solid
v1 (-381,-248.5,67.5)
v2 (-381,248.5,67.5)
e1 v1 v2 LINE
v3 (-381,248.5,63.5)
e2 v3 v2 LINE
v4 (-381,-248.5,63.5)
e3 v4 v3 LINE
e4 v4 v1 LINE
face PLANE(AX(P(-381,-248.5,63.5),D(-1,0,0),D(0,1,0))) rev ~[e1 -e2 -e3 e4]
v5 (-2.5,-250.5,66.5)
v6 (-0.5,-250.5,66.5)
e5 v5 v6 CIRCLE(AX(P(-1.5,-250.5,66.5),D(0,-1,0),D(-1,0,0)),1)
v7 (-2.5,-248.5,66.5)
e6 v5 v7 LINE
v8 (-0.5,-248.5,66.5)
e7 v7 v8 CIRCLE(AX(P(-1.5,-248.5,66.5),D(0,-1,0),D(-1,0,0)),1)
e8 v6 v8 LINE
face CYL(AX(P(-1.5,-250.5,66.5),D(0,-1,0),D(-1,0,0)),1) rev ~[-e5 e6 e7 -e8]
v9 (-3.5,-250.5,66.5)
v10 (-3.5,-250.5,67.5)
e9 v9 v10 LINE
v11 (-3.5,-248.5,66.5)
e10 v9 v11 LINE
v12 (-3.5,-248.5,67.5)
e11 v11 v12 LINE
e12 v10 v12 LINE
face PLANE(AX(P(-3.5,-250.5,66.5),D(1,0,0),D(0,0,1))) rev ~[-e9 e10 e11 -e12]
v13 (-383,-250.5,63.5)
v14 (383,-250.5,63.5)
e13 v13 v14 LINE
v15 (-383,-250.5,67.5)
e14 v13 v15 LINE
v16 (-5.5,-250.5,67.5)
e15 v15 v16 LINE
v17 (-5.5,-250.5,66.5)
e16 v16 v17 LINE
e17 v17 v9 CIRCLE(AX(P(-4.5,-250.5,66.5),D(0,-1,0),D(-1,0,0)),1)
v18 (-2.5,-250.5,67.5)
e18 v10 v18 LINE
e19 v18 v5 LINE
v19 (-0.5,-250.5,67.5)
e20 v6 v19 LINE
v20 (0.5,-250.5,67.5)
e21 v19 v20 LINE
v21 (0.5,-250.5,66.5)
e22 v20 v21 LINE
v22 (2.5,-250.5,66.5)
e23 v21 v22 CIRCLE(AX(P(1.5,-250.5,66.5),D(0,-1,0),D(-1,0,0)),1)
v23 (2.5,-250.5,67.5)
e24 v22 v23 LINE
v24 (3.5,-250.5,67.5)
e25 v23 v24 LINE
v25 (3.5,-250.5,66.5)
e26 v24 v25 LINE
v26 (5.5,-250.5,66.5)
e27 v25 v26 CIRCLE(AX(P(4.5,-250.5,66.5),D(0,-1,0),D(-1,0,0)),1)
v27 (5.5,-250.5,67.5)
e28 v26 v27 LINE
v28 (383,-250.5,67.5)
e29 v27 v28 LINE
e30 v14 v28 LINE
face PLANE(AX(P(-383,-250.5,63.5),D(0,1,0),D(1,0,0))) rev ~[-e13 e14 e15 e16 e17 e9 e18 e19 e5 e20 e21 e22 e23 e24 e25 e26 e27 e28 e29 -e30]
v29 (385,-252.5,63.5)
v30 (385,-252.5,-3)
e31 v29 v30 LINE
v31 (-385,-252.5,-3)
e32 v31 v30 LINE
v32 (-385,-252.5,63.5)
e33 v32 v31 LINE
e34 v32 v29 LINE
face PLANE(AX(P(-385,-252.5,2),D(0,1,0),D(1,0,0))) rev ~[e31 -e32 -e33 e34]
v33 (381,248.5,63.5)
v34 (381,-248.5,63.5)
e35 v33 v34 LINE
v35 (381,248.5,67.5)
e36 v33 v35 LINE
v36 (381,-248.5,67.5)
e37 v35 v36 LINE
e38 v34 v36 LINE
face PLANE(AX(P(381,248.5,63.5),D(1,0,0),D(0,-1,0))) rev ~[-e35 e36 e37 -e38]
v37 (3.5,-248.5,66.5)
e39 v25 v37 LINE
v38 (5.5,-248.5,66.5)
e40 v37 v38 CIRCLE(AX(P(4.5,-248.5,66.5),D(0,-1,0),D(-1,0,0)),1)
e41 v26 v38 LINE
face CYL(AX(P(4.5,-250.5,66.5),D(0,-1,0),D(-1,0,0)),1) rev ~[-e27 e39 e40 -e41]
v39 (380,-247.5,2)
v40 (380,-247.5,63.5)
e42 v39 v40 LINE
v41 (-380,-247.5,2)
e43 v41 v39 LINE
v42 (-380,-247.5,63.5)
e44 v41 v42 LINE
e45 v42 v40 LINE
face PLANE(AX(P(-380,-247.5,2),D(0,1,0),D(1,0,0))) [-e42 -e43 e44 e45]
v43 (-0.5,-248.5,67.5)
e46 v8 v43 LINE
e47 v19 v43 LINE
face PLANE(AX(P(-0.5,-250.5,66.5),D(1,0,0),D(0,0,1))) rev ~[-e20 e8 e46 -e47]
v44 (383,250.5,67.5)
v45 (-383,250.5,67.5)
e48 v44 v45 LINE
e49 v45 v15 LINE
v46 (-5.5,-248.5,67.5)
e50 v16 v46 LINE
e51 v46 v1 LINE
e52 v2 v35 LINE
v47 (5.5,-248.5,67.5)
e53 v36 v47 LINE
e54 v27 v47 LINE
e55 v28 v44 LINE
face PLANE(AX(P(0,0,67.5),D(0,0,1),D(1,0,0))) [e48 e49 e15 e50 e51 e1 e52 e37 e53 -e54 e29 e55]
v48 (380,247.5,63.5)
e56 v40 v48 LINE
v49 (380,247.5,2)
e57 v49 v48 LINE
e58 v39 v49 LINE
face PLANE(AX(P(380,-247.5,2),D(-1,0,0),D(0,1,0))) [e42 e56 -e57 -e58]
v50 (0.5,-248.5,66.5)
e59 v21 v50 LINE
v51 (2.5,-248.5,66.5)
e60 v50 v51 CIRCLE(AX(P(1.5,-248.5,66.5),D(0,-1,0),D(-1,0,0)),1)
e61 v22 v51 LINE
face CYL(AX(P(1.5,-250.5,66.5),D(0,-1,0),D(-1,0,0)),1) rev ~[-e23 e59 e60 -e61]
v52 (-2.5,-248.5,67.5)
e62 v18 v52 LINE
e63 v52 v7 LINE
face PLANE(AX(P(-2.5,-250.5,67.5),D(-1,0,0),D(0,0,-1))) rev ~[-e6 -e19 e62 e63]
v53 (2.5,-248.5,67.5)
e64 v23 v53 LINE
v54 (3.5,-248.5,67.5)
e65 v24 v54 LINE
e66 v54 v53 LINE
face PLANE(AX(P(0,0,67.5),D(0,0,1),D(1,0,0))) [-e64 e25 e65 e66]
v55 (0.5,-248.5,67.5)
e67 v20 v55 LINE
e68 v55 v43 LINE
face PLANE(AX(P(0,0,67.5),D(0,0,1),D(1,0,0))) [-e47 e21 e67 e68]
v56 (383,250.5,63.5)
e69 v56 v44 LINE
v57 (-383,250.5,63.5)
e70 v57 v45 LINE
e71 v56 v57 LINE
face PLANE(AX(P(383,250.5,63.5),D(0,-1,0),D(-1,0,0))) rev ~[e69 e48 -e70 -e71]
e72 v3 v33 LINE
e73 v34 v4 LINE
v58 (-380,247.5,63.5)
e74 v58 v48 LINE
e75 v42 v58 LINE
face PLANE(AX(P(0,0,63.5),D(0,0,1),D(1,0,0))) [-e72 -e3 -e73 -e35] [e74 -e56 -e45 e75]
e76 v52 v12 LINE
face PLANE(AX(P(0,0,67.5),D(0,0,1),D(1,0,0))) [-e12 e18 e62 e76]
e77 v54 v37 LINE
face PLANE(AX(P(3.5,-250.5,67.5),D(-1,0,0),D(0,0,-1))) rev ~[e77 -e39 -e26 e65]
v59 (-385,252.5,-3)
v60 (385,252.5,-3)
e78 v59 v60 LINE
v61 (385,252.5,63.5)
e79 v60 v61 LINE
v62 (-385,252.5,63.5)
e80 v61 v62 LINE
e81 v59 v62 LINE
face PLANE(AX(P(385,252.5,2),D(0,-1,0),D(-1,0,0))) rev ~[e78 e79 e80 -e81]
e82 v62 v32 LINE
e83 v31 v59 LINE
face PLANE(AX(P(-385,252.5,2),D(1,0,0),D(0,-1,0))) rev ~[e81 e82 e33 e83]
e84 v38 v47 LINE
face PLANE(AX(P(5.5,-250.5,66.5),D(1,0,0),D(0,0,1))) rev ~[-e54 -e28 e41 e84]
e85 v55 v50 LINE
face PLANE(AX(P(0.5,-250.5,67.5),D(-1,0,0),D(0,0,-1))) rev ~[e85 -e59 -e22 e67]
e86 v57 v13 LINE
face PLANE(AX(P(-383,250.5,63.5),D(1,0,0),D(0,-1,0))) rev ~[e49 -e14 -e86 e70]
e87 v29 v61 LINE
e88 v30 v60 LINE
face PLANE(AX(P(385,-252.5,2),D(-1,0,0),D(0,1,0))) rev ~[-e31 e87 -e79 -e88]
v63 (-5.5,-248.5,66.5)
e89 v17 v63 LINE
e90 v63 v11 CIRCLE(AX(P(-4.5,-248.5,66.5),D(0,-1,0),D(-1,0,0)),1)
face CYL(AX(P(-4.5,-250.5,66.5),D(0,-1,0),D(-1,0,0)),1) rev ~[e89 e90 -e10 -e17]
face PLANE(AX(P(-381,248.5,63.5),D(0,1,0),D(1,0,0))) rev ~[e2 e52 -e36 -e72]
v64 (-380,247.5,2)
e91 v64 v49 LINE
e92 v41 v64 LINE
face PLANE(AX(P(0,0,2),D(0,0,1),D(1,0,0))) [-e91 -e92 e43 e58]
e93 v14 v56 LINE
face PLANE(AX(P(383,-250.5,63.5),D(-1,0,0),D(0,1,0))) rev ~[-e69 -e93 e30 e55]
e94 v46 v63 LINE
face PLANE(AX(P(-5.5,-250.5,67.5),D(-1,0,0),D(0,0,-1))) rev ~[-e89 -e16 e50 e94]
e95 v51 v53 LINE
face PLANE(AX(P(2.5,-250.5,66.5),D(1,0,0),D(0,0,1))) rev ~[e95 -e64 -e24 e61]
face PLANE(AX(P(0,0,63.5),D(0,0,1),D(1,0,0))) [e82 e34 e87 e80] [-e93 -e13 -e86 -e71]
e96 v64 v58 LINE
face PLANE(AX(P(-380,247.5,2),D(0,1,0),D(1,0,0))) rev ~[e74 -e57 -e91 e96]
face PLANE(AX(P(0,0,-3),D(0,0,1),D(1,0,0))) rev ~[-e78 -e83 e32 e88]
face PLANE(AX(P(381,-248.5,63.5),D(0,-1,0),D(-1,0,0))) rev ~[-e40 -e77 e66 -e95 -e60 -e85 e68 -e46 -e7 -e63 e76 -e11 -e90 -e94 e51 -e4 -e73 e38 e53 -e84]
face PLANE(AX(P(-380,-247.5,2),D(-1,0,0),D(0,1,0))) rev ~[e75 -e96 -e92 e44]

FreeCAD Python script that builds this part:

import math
import FreeCAD as App
import Part
import Sketcher
from FreeCAD import Vector


def add_polygon(sketch, points):
    """Adds a closed chain of lines whose ends are joined by coincident constraints."""
    first, n = sketch.GeometryCount, len(points)
    for a, b in zip(points, points[1:] + points[:1]):
        sketch.addGeometry(Part.LineSegment(App.Vector(*a, 0), App.Vector(*b, 0)), False)
    for i in range(n):
        sketch.addConstraint(Sketcher.Constraint("Coincident", first + i, 2, first + (i + 1) % n, 1))

doc = App.newDocument("Part")
body = doc.addObject("PartDesign::Body", "Body")

# Sketch on XY plane
sketch1 = body.newObject("Sketcher::SketchObject", "Sketch")
sketch1.AttachmentSupport = (doc.getObject("XY_Plane"), [""])
sketch1.MapMode = "FlatFace"
add_polygon(sketch1, [(-385, 252), (-385, -252), (385, -252), (385, 252)])  # lines 0-3
sketch1.addConstraint(Sketcher.Constraint("Vertical", 0))
sketch1.addConstraint(Sketcher.Constraint("Horizontal", 1))
sketch1.addConstraint(Sketcher.Constraint("Vertical", 2))
sketch1.addConstraint(Sketcher.Constraint("Horizontal", 3))
sketch1.addConstraint(Sketcher.Constraint("Symmetric", 0, 2, 2, 2, -1, 1))
sketch1.addConstraint(Sketcher.Constraint("DistanceX", 1, 1, 1, 2, 770.0))
sketch1.addConstraint(Sketcher.Constraint("DistanceY", 0, 2, 0, 1, 505.0))
pad1 = body.newObject("PartDesign::Pad", "Pad")
pad1.Profile = sketch1
pad1.Type = "TwoLengths"
pad1.Length = 2
pad1.Length2 = 3

# Sketch on XY plane
sketch2 = body.newObject("Sketcher::SketchObject", "Sketch001")
sketch2.AttachmentSupport = (doc.getObject("XY_Plane"), [""])
sketch2.MapMode = "FlatFace"
sketch2.AttachmentOffset = App.Placement(Vector(0, 0, 2), App.Rotation())
add_polygon(sketch2, [(385, -252), (385, 252), (-385, 252), (-385, -252)])  # lines 0-3
add_polygon(sketch2, [(380, -248), (-380, -248), (-380, 248), (380, 248)])  # lines 4-7
sketch2.addConstraint(Sketcher.Constraint("Vertical", 0))
sketch2.addConstraint(Sketcher.Constraint("Horizontal", 1))
sketch2.addConstraint(Sketcher.Constraint("Vertical", 2))
sketch2.addConstraint(Sketcher.Constraint("Horizontal", 3))
sketch2.addConstraint(Sketcher.Constraint("Horizontal", 4))
sketch2.addConstraint(Sketcher.Constraint("Vertical", 5))
sketch2.addConstraint(Sketcher.Constraint("Horizontal", 6))
sketch2.addConstraint(Sketcher.Constraint("Vertical", 7))
sketch2.addConstraint(Sketcher.Constraint("Symmetric", 0, 2, 2, 2, -1, 1))
sketch2.addConstraint(Sketcher.Constraint("Symmetric", 4, 2, 6, 2, -1, 1))
sketch2.addConstraint(Sketcher.Constraint("DistanceX", 1, 2, 1, 1, 770.0))
sketch2.addConstraint(Sketcher.Constraint("DistanceX", 4, 2, 4, 1, 760.0))
sketch2.addConstraint(Sketcher.Constraint("DistanceY", 0, 1, 0, 2, 505.0))
sketch2.addConstraint(Sketcher.Constraint("DistanceY", 5, 1, 5, 2, 495.0))
pad2 = body.newObject("PartDesign::Pad", "Pad001")
pad2.Profile = sketch2
pad2.Length = 61.5

# Sketch on XY plane
sketch3 = body.newObject("Sketcher::SketchObject", "Sketch002")
sketch3.AttachmentSupport = (doc.getObject("XY_Plane"), [""])
sketch3.MapMode = "FlatFace"
sketch3.AttachmentOffset = App.Placement(Vector(0, 0, 63.5), App.Rotation())
add_polygon(sketch3, [(383, 250), (-383, 250), (-383, -250), (383, -250)])  # lines 0-3
add_polygon(sketch3, [(381, -248), (-381, -248), (-381, 248), (381, 248)])  # lines 4-7
sketch3.addConstraint(Sketcher.Constraint("Horizontal", 0))
sketch3.addConstraint(Sketcher.Constraint("Vertical", 1))
sketch3.addConstraint(Sketcher.Constraint("Horizontal", 2))
sketch3.addConstraint(Sketcher.Constraint("Vertical", 3))
sketch3.addConstraint(Sketcher.Constraint("Horizontal", 4))
sketch3.addConstraint(Sketcher.Constraint("Vertical", 5))
sketch3.addConstraint(Sketcher.Constraint("Horizontal", 6))
sketch3.addConstraint(Sketcher.Constraint("Vertical", 7))
sketch3.addConstraint(Sketcher.Constraint("Symmetric", 0, 2, 2, 2, -1, 1))
sketch3.addConstraint(Sketcher.Constraint("Symmetric", 4, 2, 6, 2, -1, 1))
sketch3.addConstraint(Sketcher.Constraint("DistanceX", 0, 2, 0, 1, 766.0))
sketch3.addConstraint(Sketcher.Constraint("DistanceX", 4, 2, 4, 1, 762.0))
sketch3.addConstraint(Sketcher.Constraint("DistanceY", 1, 2, 1, 1, 501.0))
sketch3.addConstraint(Sketcher.Constraint("DistanceY", 5, 1, 5, 2, 497.0))
pad3 = body.newObject("PartDesign::Pad", "Pad002")
pad3.Profile = sketch3
pad3.Length = 4

# Sketch on XZ plane
sketch4 = body.newObject("Sketcher::SketchObject", "Sketch003")
sketch4.AttachmentSupport = (doc.getObject("XZ_Plane"), [""])
sketch4.MapMode = "FlatFace"
sketch4.AttachmentOffset = App.Placement(Vector(0, 0, 250.5), App.Rotation())
sketch4.addGeometry(Part.LineSegment(Vector(3.5, 67.5, 0), Vector(3.5, 66.5, 0)), False)
sketch4.addGeometry(Part.ArcOfCircle(Part.Circle(Vector(4.5, 66.5, 0), Vector(0, 0, 1), 1), math.radians(180), math.radians(360)), False)
sketch4.addGeometry(Part.LineSegment(Vector(5.5, 66.5, 0), Vector(5.5, 67.5, 0)), False)
sketch4.addGeometry(Part.LineSegment(Vector(5.5, 67.5, 0), Vector(3.5, 67.5, 0)), False)
sketch4.addGeometry(Part.LineSegment(Vector(0.5, 67.5, 0), Vector(0.5, 66.5, 0)), False)
sketch4.addGeometry(Part.ArcOfCircle(Part.Circle(Vector(1.5, 66.5, 0), Vector(0, 0, 1), 1), math.radians(180), math.radians(360)), False)
sketch4.addGeometry(Part.LineSegment(Vector(2.5, 66.5, 0), Vector(2.5, 67.5, 0)), False)
sketch4.addGeometry(Part.LineSegment(Vector(2.5, 67.5, 0), Vector(0.5, 67.5, 0)), False)
sketch4.addGeometry(Part.LineSegment(Vector(-3.5, 66.5, 0), Vector(-3.5, 67.5, 0)), False)
sketch4.addGeometry(Part.LineSegment(Vector(-3.5, 67.5, 0), Vector(-5.5, 67.5, 0)), False)
sketch4.addGeometry(Part.LineSegment(Vector(-5.5, 67.5, 0), Vector(-5.5, 66.5, 0)), False)
sketch4.addGeometry(Part.ArcOfCircle(Part.Circle(Vector(-4.5, 66.5, 0), Vector(0, 0, 1), 1), math.radians(180), math.radians(360)), False)
sketch4.addGeometry(Part.LineSegment(Vector(-0.5, 66.5, 0), Vector(-0.5, 67.5, 0)), False)
sketch4.addGeometry(Part.LineSegment(Vector(-0.5, 67.5, 0), Vector(-2.5, 67.5, 0)), False)
sketch4.addGeometry(Part.LineSegment(Vector(-2.5, 67.5, 0), Vector(-2.5, 66.5, 0)), False)
sketch4.addGeometry(Part.ArcOfCircle(Part.Circle(Vector(-1.5, 66.5, 0), Vector(0, 0, 1), 1), math.radians(180), math.radians(360)), False)
sketch4.addConstraint(Sketcher.Constraint("Tangent", 0, 2, 1, 1))
sketch4.addConstraint(Sketcher.Constraint("Tangent", 1, 2, 2, 1))
sketch4.addConstraint(Sketcher.Constraint("Coincident", 2, 2, 3, 1))
sketch4.addConstraint(Sketcher.Constraint("Coincident", 3, 2, 0, 1))
sketch4.addConstraint(Sketcher.Constraint("Tangent", 4, 2, 5, 1))
sketch4.addConstraint(Sketcher.Constraint("Tangent", 5, 2, 6, 1))
sketch4.addConstraint(Sketcher.Constraint("Coincident", 6, 2, 7, 1))
sketch4.addConstraint(Sketcher.Constraint("Coincident", 7, 2, 4, 1))
sketch4.addConstraint(Sketcher.Constraint("Coincident", 8, 2, 9, 1))
sketch4.addConstraint(Sketcher.Constraint("Coincident", 9, 2, 10, 1))
sketch4.addConstraint(Sketcher.Constraint("Tangent", 10, 2, 11, 1))
sketch4.addConstraint(Sketcher.Constraint("Tangent", 11, 2, 8, 1))
sketch4.addConstraint(Sketcher.Constraint("Coincident", 12, 2, 13, 1))
sketch4.addConstraint(Sketcher.Constraint("Coincident", 13, 2, 14, 1))
sketch4.addConstraint(Sketcher.Constraint("Tangent", 14, 2, 15, 1))
sketch4.addConstraint(Sketcher.Constraint("Tangent", 15, 2, 12, 1))
sketch4.addConstraint(Sketcher.Constraint("Vertical", 0))
sketch4.addConstraint(Sketcher.Constraint("Vertical", 2))
sketch4.addConstraint(Sketcher.Constraint("Horizontal", 3))
sketch4.addConstraint(Sketcher.Constraint("Vertical", 4))
sketch4.addConstraint(Sketcher.Constraint("Vertical", 6))
sketch4.addConstraint(Sketcher.Constraint("Horizontal", 7))
sketch4.addConstraint(Sketcher.Constraint("Vertical", 8))
sketch4.addConstraint(Sketcher.Constraint("Horizontal", 9))
sketch4.addConstraint(Sketcher.Constraint("Vertical", 10))
sketch4.addConstraint(Sketcher.Constraint("Vertical", 12))
sketch4.addConstraint(Sketcher.Constraint("Horizontal", 13))
sketch4.addConstraint(Sketcher.Constraint("Vertical", 14))
sketch4.addConstraint(Sketcher.Constraint("Equal", 1, 5))
sketch4.addConstraint(Sketcher.Constraint("Equal", 5, 11))
sketch4.addConstraint(Sketcher.Constraint("Equal", 11, 15))
sketch4.addConstraint(Sketcher.Constraint("Symmetric", 1, 3, 11, 3, -2))
sketch4.addConstraint(Sketcher.Constraint("Symmetric", 5, 3, 15, 3, -2))
sketch4.addConstraint(Sketcher.Constraint("Horizontal", 1, 3, 5, 3))
sketch4.addConstraint(Sketcher.Constraint("Horizontal", 3, 2, 6, 2))
sketch4.addConstraint(Sketcher.Constraint("Horizontal", 7, 2, 8, 2))
sketch4.addConstraint(Sketcher.Constraint("Horizontal", 9, 2, 12, 2))
sketch4.addConstraint(Sketcher.Constraint("Radius", 1, 1.0))
sketch4.addConstraint(Sketcher.Constraint("DistanceY", 0, 2, 0, 1, 1.0))
sketch4.addConstraint(Sketcher.Constraint("DistanceX", 5, 3, 1, 3, 3.0))
sketch4.addConstraint(Sketcher.Constraint("DistanceX", 11, 3, 5, 3, 6.0))
sketch4.addConstraint(Sketcher.Constraint("DistanceY", -1, 1, 1, 3, 66.5))
pocket1 = body.newObject("PartDesign::Pocket", "Pocket")
pocket1.Profile = sketch4
pocket1.Length = 25.4

doc.recompute()
